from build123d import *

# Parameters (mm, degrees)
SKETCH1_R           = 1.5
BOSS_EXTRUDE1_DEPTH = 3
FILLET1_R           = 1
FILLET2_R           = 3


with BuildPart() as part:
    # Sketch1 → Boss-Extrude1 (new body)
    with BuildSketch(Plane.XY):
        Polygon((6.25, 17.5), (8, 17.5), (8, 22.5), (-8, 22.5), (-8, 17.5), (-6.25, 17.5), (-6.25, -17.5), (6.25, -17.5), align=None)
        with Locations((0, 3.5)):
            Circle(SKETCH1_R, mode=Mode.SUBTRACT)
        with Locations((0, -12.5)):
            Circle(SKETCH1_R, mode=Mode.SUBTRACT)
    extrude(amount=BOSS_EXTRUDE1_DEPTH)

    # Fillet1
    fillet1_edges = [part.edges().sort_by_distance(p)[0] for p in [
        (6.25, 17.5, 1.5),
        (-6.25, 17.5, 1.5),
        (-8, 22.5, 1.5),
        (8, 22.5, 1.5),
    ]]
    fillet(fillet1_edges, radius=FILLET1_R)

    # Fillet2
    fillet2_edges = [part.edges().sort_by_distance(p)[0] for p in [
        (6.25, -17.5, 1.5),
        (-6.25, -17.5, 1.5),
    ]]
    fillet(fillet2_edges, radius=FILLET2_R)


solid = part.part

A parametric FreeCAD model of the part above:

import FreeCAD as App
import Part
import Sketcher

V = App.Vector
Q = App.Units.Quantity


def edges_at(feature, points):
    """Names of the edges that pass closest to the given points."""
    edges = feature.Shape.Edges
    near = lambda p: min(range(len(edges)), key=lambda i: edges[i].distToShape(Part.Vertex(*p))[0])
    return sorted({f"Edge{near(p) + 1}" for p in points})

doc = App.newDocument("Part")
body = doc.addObject("PartDesign::Body", "Body")

# Sketch on XY plane
sketch1 = body.newObject("Sketcher::SketchObject", "Sketch")
sketch1.AttachmentSupport = (doc.getObject("XY_Plane"), [""])
sketch1.MapMode = "FlatFace"
sketch1.addGeometry([
    Part.LineSegment(V(6.2, 17.5, 0), V(8, 17.5, 0)),  # 0
    Part.LineSegment(V(8, 17.5, 0), V(8, 22.5, 0)),  # 1
    Part.LineSegment(V(8, 22.5, 0), V(-8, 22.5, 0)),  # 2
    Part.LineSegment(V(-8, 22.5, 0), V(-8, 17.5, 0)),  # 3
    Part.LineSegment(V(-8, 17.5, 0), V(-6.2, 17.5, 0)),  # 4
    Part.LineSegment(V(-6.2, 17.5, 0), V(-6.2, -17.5, 0)),  # 5
    Part.LineSegment(V(-6.2, -17.5, 0), V(6.2, -17.5, 0)),  # 6
    Part.LineSegment(V(6.2, -17.5, 0), V(6.2, 17.5, 0)),  # 7
    Part.Circle(V(0, -12.5, 0), V(0, 0, 1), 1.5),  # 8
    Part.Circle(V(0, 3.5, 0), V(0, 0, 1), 1.5),  # 9
], False)
sketch1.addConstraint([
    Sketcher.Constraint("Coincident", 0, 2, 1, 1),
    Sketcher.Constraint("Coincident", 1, 2, 2, 1),
    Sketcher.Constraint("Coincident", 2, 2, 3, 1),
    Sketcher.Constraint("Coincident", 3, 2, 4, 1),
    Sketcher.Constraint("Coincident", 4, 2, 5, 1),
    Sketcher.Constraint("Coincident", 5, 2, 6, 1),
    Sketcher.Constraint("Coincident", 6, 2, 7, 1),
    Sketcher.Constraint("Coincident", 7, 2, 0, 1),
    Sketcher.Constraint("Horizontal", 0),
    Sketcher.Constraint("Vertical", 1),
    Sketcher.Constraint("Horizontal", 2),
    Sketcher.Constraint("Vertical", 3),
    Sketcher.Constraint("Horizontal", 4),
    Sketcher.Constraint("Vertical", 5),
    Sketcher.Constraint("Horizontal", 6),
    Sketcher.Constraint("Vertical", 7),
    Sketcher.Constraint("Equal", 8, 9),
    Sketcher.Constraint("Symmetric", 4, 2, 6, 2, -1, 1),
    Sketcher.Constraint("Symmetric", 0, 2, 3, 2, -2),
    Sketcher.Constraint("PointOnObject", 8, 3, -2),
    Sketcher.Constraint("PointOnObject", 9, 3, -2),
    Sketcher.Constraint("Diameter", 8, Q("3 mm")),
    Sketcher.Constraint("DistanceX", 2, 2, 2, 1, Q("16 mm")),
    Sketcher.Constraint("DistanceY", 1, 1, 1, 2, Q("5 mm")),
    Sketcher.Constraint("DistanceY", 5, 2, 5, 1, Q("35 mm")),
    Sketcher.Constraint("DistanceX", 6, 1, 6, 2, Q("12.5 mm")),
    Sketcher.Constraint("DistanceY", 8, 3, 9, 3, Q("16 mm")),
    Sketcher.Constraint("DistanceY", 9, 3, 0, 2, Q("14 mm")),
])
pad1 = body.newObject("PartDesign::Pad", "Pad")
pad1.Profile = sketch1
pad1.Length = 3
doc.recompute()

fillet = body.newObject("PartDesign::Fillet", "Fillet")
fillet.Base = (pad1, edges_at(pad1, [
    (6.25, 17.5, 1.5),
    (-6.25, 17.5, 1.5),
    (-8, 22.5, 1.5),
    (8, 22.5, 1.5),
]))
fillet.Radius = 1
doc.recompute()

fillet2 = body.newObject("PartDesign::Fillet", "Fillet001")
fillet2.Base = (fillet, edges_at(fillet, [(6.25, -17.5, 1.5), (-6.25, -17.5, 1.5)]))
fillet2.Radius = 3

doc.recompute()
